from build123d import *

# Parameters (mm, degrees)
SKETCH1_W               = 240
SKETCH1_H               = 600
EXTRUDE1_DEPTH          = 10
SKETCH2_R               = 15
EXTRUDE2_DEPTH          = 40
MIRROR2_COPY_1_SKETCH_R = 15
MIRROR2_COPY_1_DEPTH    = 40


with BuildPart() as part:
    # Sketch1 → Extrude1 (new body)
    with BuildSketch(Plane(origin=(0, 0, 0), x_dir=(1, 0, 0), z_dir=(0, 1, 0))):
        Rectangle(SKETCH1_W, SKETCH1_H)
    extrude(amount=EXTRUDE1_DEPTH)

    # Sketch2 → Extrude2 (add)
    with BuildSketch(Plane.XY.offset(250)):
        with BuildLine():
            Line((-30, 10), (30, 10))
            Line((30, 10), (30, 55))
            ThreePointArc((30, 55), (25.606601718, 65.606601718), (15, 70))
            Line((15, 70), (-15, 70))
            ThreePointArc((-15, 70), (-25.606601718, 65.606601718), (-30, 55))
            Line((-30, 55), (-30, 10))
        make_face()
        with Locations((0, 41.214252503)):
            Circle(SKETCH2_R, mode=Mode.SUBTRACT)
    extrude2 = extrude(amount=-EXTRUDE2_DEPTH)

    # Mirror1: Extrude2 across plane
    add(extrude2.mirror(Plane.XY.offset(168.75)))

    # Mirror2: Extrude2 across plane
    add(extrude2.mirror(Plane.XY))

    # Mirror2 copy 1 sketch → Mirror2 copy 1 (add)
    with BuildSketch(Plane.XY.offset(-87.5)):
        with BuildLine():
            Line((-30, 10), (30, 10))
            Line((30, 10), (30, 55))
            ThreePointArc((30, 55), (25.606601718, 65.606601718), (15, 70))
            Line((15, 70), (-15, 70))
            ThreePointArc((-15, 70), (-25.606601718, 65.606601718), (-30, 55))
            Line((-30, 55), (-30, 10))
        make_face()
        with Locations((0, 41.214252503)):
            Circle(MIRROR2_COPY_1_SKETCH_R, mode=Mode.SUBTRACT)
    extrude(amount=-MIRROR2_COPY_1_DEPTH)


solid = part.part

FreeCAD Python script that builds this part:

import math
import FreeCAD as App
import Part
import Sketcher

doc = App.newDocument("Part")
body = doc.addObject("PartDesign::Body", "Body")

# Sketch on XZ plane
sketch1 = body.newObject("Sketcher::SketchObject", "Sketch")
sketch1.AttachmentSupport = (doc.getObject("XZ_Plane"), [""])
sketch1.MapMode = "FlatFace"
sketch1.addGeometry([
    Part.LineSegment(App.Vector(-120, -300, 0), App.Vector(-120, 300, 0)),
    Part.LineSegment(App.Vector(-120, 300, 0), App.Vector(120, 300, 0)),
    Part.LineSegment(App.Vector(120, 300, 0), App.Vector(120, -300, 0)),
    Part.LineSegment(App.Vector(120, -300, 0), App.Vector(-120, -300, 0)),
], False)
sketch1.addConstraint([
    Sketcher.Constraint("Coincident", 0, 2, 1, 1),
    Sketcher.Constraint("Coincident", 1, 2, 2, 1),
    Sketcher.Constraint("Coincident", 2, 2, 3, 1),
    Sketcher.Constraint("Coincident", 3, 2, 0, 1),
    Sketcher.Constraint("Vertical", 0),
    Sketcher.Constraint("Horizontal", 1),
    Sketcher.Constraint("Vertical", 2),
    Sketcher.Constraint("Horizontal", 3),
    Sketcher.Constraint("Symmetric", 0, 2, 2, 2, -1, 1),
    Sketcher.Constraint("DistanceX", 1, 1, 1, 2, 240.0),
    Sketcher.Constraint("DistanceY", 0, 1, 0, 2, 600.0),
])
pad1 = body.newObject("PartDesign::Pad", "Pad")
pad1.Profile = sketch1
pad1.Length = 10
pad1.Reversed = True

# Sketch on XY plane
sketch2 = body.newObject("Sketcher::SketchObject", "Sketch001")
sketch2.AttachmentSupport = (doc.getObject("XY_Plane"), [""])
sketch2.MapMode = "FlatFace"
sketch2.AttachmentOffset = App.Placement(App.Vector(0, 0, 250), App.Rotation())
sketch2.addGeometry([
    Part.LineSegment(App.Vector(-30, 10, 0), App.Vector(30, 10, 0)),  # 0
    Part.LineSegment(App.Vector(30, 10, 0), App.Vector(30, 55, 0)),  # 1
    Part.ArcOfCircle(Part.Circle(App.Vector(15, 55, 0), App.Vector(0, 0, 1), 15), math.radians(0), math.radians(90)),  # 2
    Part.LineSegment(App.Vector(15, 70, 0), App.Vector(-15, 70, 0)),  # 3
    Part.ArcOfCircle(Part.Circle(App.Vector(-15, 55, 0), App.Vector(0, 0, 1), 15), math.radians(90), math.radians(180)),  # 4
    Part.LineSegment(App.Vector(-30, 55, 0), App.Vector(-30, 10, 0)),  # 5
    Part.Circle(App.Vector(0, 41, 0), App.Vector(0, 0, 1), 15),  # 6
], False)
sketch2.addConstraint([
    Sketcher.Constraint("Coincident", 0, 2, 1, 1),
    Sketcher.Constraint("Tangent", 1, 2, 2, 1),
    Sketcher.Constraint("Tangent", 2, 2, 3, 1),
    Sketcher.Constraint("Tangent", 3, 2, 4, 1),
    Sketcher.Constraint("Tangent", 4, 2, 5, 1),
    Sketcher.Constraint("Coincident", 5, 2, 0, 1),
    Sketcher.Constraint("Horizontal", 0),
    Sketcher.Constraint("Vertical", 1),
    Sketcher.Constraint("Horizontal", 3),
    Sketcher.Constraint("Vertical", 5),
    Sketcher.Constraint("Equal", 2, 4),
    Sketcher.Constraint("Equal", 4, 6),
    Sketcher.Constraint("PointOnObject", 6, 3, -2),
    Sketcher.Constraint("Diameter", 6, 30.0),
    Sketcher.Constraint("DistanceX", 0, 1, 0, 2, 60.0),
    Sketcher.Constraint("DistanceY", 1, 1, 1, 2, 45.0),
    Sketcher.Constraint("DistanceX", -1, 1, 2, 3, 15.0),
    Sketcher.Constraint("DistanceY", -1, 1, 2, 3, 55.0),
    Sketcher.Constraint("DistanceY", -1, 1, 6, 3, 41.214253),
])
pad2 = body.newObject("PartDesign::Pad", "Pad001")
pad2.Profile = sketch2
pad2.Length = 40
pad2.Reversed = True
doc.recompute()

datumplane = body.newObject("PartDesign::Plane", "DatumPlane")
datumplane.AttachmentSupport = (doc.getObject("XY_Plane"), [""])
datumplane.MapMode = "FlatFace"
datumplane.AttachmentOffset = App.Placement(App.Vector(0, 0, 168.75), App.Rotation())
mirrored = body.newObject("PartDesign::Mirrored", "Mirrored")
mirrored.Originals = [pad2]
mirrored.MirrorPlane = (datumplane, [""])
body.Tip = mirrored
doc.recompute()

mirrored2 = body.newObject("PartDesign::Mirrored", "Mirrored001")
mirrored2.Originals = [pad2]
mirrored2.MirrorPlane = (doc.getObject("XY_Plane"), [""])
body.Tip = mirrored2

# Sketch on XY plane
sketch3 = body.newObject("Sketcher::SketchObject", "Sketch002")
sketch3.AttachmentSupport = (doc.getObject("XY_Plane"), [""])
sketch3.MapMode = "FlatFace"
sketch3.AttachmentOffset = App.Placement(App.Vector(0, 0, -87.5), App.Rotation())
sketch3.addGeometry([
    Part.LineSegment(App.Vector(-30, 10, 0), App.Vector(30, 10, 0)),  # 0
    Part.LineSegment(App.Vector(30, 10, 0), App.Vector(30, 55, 0)),  # 1
    Part.ArcOfCircle(Part.Circle(App.Vector(15, 55, 0), App.Vector(0, 0, 1), 15), math.radians(0), math.radians(90)),  # 2
    Part.LineSegment(App.Vector(15, 70, 0), App.Vector(-15, 70, 0)),  # 3
    Part.ArcOfCircle(Part.Circle(App.Vector(-15, 55, 0), App.Vector(0, 0, 1), 15), math.radians(90), math.radians(180)),  # 4
    Part.LineSegment(App.Vector(-30, 55, 0), App.Vector(-30, 10, 0)),  # 5
    Part.Circle(App.Vector(0, 41, 0), App.Vector(0, 0, 1), 15),  # 6
], False)
sketch3.addConstraint([
    Sketcher.Constraint("Coincident", 0, 2, 1, 1),
    Sketcher.Constraint("Tangent", 1, 2, 2, 1),
    Sketcher.Constraint("Tangent", 2, 2, 3, 1),
    Sketcher.Constraint("Tangent", 3, 2, 4, 1),
    Sketcher.Constraint("Tangent", 4, 2, 5, 1),
    Sketcher.Constraint("Coincident", 5, 2, 0, 1),
    Sketcher.Constraint("Horizontal", 0),
    Sketcher.Constraint("Vertical", 1),
    Sketcher.Constraint("Horizontal", 3),
    Sketcher.Constraint("Vertical", 5),
    Sketcher.Constraint("Equal", 2, 4),
    Sketcher.Constraint("Equal", 4, 6),
    Sketcher.Constraint("PointOnObject", 6, 3, -2),
    Sketcher.Constraint("Diameter", 6, 30.0),
    Sketcher.Constraint("DistanceX", 0, 1, 0, 2, 60.0),
    Sketcher.Constraint("DistanceY", 1, 1, 1, 2, 45.0),
    Sketcher.Constraint("DistanceX", -1, 1, 2, 3, 15.0),
    Sketcher.Constraint("DistanceY", -1, 1, 2, 3, 55.0),
    Sketcher.Constraint("DistanceY", -1, 1, 6, 3, 41.214253),
])
pad3 = body.newObject("PartDesign::Pad", "Pad002")
pad3.Profile = sketch3
pad3.Length = 40
pad3.Reversed = True

doc.recompute()
